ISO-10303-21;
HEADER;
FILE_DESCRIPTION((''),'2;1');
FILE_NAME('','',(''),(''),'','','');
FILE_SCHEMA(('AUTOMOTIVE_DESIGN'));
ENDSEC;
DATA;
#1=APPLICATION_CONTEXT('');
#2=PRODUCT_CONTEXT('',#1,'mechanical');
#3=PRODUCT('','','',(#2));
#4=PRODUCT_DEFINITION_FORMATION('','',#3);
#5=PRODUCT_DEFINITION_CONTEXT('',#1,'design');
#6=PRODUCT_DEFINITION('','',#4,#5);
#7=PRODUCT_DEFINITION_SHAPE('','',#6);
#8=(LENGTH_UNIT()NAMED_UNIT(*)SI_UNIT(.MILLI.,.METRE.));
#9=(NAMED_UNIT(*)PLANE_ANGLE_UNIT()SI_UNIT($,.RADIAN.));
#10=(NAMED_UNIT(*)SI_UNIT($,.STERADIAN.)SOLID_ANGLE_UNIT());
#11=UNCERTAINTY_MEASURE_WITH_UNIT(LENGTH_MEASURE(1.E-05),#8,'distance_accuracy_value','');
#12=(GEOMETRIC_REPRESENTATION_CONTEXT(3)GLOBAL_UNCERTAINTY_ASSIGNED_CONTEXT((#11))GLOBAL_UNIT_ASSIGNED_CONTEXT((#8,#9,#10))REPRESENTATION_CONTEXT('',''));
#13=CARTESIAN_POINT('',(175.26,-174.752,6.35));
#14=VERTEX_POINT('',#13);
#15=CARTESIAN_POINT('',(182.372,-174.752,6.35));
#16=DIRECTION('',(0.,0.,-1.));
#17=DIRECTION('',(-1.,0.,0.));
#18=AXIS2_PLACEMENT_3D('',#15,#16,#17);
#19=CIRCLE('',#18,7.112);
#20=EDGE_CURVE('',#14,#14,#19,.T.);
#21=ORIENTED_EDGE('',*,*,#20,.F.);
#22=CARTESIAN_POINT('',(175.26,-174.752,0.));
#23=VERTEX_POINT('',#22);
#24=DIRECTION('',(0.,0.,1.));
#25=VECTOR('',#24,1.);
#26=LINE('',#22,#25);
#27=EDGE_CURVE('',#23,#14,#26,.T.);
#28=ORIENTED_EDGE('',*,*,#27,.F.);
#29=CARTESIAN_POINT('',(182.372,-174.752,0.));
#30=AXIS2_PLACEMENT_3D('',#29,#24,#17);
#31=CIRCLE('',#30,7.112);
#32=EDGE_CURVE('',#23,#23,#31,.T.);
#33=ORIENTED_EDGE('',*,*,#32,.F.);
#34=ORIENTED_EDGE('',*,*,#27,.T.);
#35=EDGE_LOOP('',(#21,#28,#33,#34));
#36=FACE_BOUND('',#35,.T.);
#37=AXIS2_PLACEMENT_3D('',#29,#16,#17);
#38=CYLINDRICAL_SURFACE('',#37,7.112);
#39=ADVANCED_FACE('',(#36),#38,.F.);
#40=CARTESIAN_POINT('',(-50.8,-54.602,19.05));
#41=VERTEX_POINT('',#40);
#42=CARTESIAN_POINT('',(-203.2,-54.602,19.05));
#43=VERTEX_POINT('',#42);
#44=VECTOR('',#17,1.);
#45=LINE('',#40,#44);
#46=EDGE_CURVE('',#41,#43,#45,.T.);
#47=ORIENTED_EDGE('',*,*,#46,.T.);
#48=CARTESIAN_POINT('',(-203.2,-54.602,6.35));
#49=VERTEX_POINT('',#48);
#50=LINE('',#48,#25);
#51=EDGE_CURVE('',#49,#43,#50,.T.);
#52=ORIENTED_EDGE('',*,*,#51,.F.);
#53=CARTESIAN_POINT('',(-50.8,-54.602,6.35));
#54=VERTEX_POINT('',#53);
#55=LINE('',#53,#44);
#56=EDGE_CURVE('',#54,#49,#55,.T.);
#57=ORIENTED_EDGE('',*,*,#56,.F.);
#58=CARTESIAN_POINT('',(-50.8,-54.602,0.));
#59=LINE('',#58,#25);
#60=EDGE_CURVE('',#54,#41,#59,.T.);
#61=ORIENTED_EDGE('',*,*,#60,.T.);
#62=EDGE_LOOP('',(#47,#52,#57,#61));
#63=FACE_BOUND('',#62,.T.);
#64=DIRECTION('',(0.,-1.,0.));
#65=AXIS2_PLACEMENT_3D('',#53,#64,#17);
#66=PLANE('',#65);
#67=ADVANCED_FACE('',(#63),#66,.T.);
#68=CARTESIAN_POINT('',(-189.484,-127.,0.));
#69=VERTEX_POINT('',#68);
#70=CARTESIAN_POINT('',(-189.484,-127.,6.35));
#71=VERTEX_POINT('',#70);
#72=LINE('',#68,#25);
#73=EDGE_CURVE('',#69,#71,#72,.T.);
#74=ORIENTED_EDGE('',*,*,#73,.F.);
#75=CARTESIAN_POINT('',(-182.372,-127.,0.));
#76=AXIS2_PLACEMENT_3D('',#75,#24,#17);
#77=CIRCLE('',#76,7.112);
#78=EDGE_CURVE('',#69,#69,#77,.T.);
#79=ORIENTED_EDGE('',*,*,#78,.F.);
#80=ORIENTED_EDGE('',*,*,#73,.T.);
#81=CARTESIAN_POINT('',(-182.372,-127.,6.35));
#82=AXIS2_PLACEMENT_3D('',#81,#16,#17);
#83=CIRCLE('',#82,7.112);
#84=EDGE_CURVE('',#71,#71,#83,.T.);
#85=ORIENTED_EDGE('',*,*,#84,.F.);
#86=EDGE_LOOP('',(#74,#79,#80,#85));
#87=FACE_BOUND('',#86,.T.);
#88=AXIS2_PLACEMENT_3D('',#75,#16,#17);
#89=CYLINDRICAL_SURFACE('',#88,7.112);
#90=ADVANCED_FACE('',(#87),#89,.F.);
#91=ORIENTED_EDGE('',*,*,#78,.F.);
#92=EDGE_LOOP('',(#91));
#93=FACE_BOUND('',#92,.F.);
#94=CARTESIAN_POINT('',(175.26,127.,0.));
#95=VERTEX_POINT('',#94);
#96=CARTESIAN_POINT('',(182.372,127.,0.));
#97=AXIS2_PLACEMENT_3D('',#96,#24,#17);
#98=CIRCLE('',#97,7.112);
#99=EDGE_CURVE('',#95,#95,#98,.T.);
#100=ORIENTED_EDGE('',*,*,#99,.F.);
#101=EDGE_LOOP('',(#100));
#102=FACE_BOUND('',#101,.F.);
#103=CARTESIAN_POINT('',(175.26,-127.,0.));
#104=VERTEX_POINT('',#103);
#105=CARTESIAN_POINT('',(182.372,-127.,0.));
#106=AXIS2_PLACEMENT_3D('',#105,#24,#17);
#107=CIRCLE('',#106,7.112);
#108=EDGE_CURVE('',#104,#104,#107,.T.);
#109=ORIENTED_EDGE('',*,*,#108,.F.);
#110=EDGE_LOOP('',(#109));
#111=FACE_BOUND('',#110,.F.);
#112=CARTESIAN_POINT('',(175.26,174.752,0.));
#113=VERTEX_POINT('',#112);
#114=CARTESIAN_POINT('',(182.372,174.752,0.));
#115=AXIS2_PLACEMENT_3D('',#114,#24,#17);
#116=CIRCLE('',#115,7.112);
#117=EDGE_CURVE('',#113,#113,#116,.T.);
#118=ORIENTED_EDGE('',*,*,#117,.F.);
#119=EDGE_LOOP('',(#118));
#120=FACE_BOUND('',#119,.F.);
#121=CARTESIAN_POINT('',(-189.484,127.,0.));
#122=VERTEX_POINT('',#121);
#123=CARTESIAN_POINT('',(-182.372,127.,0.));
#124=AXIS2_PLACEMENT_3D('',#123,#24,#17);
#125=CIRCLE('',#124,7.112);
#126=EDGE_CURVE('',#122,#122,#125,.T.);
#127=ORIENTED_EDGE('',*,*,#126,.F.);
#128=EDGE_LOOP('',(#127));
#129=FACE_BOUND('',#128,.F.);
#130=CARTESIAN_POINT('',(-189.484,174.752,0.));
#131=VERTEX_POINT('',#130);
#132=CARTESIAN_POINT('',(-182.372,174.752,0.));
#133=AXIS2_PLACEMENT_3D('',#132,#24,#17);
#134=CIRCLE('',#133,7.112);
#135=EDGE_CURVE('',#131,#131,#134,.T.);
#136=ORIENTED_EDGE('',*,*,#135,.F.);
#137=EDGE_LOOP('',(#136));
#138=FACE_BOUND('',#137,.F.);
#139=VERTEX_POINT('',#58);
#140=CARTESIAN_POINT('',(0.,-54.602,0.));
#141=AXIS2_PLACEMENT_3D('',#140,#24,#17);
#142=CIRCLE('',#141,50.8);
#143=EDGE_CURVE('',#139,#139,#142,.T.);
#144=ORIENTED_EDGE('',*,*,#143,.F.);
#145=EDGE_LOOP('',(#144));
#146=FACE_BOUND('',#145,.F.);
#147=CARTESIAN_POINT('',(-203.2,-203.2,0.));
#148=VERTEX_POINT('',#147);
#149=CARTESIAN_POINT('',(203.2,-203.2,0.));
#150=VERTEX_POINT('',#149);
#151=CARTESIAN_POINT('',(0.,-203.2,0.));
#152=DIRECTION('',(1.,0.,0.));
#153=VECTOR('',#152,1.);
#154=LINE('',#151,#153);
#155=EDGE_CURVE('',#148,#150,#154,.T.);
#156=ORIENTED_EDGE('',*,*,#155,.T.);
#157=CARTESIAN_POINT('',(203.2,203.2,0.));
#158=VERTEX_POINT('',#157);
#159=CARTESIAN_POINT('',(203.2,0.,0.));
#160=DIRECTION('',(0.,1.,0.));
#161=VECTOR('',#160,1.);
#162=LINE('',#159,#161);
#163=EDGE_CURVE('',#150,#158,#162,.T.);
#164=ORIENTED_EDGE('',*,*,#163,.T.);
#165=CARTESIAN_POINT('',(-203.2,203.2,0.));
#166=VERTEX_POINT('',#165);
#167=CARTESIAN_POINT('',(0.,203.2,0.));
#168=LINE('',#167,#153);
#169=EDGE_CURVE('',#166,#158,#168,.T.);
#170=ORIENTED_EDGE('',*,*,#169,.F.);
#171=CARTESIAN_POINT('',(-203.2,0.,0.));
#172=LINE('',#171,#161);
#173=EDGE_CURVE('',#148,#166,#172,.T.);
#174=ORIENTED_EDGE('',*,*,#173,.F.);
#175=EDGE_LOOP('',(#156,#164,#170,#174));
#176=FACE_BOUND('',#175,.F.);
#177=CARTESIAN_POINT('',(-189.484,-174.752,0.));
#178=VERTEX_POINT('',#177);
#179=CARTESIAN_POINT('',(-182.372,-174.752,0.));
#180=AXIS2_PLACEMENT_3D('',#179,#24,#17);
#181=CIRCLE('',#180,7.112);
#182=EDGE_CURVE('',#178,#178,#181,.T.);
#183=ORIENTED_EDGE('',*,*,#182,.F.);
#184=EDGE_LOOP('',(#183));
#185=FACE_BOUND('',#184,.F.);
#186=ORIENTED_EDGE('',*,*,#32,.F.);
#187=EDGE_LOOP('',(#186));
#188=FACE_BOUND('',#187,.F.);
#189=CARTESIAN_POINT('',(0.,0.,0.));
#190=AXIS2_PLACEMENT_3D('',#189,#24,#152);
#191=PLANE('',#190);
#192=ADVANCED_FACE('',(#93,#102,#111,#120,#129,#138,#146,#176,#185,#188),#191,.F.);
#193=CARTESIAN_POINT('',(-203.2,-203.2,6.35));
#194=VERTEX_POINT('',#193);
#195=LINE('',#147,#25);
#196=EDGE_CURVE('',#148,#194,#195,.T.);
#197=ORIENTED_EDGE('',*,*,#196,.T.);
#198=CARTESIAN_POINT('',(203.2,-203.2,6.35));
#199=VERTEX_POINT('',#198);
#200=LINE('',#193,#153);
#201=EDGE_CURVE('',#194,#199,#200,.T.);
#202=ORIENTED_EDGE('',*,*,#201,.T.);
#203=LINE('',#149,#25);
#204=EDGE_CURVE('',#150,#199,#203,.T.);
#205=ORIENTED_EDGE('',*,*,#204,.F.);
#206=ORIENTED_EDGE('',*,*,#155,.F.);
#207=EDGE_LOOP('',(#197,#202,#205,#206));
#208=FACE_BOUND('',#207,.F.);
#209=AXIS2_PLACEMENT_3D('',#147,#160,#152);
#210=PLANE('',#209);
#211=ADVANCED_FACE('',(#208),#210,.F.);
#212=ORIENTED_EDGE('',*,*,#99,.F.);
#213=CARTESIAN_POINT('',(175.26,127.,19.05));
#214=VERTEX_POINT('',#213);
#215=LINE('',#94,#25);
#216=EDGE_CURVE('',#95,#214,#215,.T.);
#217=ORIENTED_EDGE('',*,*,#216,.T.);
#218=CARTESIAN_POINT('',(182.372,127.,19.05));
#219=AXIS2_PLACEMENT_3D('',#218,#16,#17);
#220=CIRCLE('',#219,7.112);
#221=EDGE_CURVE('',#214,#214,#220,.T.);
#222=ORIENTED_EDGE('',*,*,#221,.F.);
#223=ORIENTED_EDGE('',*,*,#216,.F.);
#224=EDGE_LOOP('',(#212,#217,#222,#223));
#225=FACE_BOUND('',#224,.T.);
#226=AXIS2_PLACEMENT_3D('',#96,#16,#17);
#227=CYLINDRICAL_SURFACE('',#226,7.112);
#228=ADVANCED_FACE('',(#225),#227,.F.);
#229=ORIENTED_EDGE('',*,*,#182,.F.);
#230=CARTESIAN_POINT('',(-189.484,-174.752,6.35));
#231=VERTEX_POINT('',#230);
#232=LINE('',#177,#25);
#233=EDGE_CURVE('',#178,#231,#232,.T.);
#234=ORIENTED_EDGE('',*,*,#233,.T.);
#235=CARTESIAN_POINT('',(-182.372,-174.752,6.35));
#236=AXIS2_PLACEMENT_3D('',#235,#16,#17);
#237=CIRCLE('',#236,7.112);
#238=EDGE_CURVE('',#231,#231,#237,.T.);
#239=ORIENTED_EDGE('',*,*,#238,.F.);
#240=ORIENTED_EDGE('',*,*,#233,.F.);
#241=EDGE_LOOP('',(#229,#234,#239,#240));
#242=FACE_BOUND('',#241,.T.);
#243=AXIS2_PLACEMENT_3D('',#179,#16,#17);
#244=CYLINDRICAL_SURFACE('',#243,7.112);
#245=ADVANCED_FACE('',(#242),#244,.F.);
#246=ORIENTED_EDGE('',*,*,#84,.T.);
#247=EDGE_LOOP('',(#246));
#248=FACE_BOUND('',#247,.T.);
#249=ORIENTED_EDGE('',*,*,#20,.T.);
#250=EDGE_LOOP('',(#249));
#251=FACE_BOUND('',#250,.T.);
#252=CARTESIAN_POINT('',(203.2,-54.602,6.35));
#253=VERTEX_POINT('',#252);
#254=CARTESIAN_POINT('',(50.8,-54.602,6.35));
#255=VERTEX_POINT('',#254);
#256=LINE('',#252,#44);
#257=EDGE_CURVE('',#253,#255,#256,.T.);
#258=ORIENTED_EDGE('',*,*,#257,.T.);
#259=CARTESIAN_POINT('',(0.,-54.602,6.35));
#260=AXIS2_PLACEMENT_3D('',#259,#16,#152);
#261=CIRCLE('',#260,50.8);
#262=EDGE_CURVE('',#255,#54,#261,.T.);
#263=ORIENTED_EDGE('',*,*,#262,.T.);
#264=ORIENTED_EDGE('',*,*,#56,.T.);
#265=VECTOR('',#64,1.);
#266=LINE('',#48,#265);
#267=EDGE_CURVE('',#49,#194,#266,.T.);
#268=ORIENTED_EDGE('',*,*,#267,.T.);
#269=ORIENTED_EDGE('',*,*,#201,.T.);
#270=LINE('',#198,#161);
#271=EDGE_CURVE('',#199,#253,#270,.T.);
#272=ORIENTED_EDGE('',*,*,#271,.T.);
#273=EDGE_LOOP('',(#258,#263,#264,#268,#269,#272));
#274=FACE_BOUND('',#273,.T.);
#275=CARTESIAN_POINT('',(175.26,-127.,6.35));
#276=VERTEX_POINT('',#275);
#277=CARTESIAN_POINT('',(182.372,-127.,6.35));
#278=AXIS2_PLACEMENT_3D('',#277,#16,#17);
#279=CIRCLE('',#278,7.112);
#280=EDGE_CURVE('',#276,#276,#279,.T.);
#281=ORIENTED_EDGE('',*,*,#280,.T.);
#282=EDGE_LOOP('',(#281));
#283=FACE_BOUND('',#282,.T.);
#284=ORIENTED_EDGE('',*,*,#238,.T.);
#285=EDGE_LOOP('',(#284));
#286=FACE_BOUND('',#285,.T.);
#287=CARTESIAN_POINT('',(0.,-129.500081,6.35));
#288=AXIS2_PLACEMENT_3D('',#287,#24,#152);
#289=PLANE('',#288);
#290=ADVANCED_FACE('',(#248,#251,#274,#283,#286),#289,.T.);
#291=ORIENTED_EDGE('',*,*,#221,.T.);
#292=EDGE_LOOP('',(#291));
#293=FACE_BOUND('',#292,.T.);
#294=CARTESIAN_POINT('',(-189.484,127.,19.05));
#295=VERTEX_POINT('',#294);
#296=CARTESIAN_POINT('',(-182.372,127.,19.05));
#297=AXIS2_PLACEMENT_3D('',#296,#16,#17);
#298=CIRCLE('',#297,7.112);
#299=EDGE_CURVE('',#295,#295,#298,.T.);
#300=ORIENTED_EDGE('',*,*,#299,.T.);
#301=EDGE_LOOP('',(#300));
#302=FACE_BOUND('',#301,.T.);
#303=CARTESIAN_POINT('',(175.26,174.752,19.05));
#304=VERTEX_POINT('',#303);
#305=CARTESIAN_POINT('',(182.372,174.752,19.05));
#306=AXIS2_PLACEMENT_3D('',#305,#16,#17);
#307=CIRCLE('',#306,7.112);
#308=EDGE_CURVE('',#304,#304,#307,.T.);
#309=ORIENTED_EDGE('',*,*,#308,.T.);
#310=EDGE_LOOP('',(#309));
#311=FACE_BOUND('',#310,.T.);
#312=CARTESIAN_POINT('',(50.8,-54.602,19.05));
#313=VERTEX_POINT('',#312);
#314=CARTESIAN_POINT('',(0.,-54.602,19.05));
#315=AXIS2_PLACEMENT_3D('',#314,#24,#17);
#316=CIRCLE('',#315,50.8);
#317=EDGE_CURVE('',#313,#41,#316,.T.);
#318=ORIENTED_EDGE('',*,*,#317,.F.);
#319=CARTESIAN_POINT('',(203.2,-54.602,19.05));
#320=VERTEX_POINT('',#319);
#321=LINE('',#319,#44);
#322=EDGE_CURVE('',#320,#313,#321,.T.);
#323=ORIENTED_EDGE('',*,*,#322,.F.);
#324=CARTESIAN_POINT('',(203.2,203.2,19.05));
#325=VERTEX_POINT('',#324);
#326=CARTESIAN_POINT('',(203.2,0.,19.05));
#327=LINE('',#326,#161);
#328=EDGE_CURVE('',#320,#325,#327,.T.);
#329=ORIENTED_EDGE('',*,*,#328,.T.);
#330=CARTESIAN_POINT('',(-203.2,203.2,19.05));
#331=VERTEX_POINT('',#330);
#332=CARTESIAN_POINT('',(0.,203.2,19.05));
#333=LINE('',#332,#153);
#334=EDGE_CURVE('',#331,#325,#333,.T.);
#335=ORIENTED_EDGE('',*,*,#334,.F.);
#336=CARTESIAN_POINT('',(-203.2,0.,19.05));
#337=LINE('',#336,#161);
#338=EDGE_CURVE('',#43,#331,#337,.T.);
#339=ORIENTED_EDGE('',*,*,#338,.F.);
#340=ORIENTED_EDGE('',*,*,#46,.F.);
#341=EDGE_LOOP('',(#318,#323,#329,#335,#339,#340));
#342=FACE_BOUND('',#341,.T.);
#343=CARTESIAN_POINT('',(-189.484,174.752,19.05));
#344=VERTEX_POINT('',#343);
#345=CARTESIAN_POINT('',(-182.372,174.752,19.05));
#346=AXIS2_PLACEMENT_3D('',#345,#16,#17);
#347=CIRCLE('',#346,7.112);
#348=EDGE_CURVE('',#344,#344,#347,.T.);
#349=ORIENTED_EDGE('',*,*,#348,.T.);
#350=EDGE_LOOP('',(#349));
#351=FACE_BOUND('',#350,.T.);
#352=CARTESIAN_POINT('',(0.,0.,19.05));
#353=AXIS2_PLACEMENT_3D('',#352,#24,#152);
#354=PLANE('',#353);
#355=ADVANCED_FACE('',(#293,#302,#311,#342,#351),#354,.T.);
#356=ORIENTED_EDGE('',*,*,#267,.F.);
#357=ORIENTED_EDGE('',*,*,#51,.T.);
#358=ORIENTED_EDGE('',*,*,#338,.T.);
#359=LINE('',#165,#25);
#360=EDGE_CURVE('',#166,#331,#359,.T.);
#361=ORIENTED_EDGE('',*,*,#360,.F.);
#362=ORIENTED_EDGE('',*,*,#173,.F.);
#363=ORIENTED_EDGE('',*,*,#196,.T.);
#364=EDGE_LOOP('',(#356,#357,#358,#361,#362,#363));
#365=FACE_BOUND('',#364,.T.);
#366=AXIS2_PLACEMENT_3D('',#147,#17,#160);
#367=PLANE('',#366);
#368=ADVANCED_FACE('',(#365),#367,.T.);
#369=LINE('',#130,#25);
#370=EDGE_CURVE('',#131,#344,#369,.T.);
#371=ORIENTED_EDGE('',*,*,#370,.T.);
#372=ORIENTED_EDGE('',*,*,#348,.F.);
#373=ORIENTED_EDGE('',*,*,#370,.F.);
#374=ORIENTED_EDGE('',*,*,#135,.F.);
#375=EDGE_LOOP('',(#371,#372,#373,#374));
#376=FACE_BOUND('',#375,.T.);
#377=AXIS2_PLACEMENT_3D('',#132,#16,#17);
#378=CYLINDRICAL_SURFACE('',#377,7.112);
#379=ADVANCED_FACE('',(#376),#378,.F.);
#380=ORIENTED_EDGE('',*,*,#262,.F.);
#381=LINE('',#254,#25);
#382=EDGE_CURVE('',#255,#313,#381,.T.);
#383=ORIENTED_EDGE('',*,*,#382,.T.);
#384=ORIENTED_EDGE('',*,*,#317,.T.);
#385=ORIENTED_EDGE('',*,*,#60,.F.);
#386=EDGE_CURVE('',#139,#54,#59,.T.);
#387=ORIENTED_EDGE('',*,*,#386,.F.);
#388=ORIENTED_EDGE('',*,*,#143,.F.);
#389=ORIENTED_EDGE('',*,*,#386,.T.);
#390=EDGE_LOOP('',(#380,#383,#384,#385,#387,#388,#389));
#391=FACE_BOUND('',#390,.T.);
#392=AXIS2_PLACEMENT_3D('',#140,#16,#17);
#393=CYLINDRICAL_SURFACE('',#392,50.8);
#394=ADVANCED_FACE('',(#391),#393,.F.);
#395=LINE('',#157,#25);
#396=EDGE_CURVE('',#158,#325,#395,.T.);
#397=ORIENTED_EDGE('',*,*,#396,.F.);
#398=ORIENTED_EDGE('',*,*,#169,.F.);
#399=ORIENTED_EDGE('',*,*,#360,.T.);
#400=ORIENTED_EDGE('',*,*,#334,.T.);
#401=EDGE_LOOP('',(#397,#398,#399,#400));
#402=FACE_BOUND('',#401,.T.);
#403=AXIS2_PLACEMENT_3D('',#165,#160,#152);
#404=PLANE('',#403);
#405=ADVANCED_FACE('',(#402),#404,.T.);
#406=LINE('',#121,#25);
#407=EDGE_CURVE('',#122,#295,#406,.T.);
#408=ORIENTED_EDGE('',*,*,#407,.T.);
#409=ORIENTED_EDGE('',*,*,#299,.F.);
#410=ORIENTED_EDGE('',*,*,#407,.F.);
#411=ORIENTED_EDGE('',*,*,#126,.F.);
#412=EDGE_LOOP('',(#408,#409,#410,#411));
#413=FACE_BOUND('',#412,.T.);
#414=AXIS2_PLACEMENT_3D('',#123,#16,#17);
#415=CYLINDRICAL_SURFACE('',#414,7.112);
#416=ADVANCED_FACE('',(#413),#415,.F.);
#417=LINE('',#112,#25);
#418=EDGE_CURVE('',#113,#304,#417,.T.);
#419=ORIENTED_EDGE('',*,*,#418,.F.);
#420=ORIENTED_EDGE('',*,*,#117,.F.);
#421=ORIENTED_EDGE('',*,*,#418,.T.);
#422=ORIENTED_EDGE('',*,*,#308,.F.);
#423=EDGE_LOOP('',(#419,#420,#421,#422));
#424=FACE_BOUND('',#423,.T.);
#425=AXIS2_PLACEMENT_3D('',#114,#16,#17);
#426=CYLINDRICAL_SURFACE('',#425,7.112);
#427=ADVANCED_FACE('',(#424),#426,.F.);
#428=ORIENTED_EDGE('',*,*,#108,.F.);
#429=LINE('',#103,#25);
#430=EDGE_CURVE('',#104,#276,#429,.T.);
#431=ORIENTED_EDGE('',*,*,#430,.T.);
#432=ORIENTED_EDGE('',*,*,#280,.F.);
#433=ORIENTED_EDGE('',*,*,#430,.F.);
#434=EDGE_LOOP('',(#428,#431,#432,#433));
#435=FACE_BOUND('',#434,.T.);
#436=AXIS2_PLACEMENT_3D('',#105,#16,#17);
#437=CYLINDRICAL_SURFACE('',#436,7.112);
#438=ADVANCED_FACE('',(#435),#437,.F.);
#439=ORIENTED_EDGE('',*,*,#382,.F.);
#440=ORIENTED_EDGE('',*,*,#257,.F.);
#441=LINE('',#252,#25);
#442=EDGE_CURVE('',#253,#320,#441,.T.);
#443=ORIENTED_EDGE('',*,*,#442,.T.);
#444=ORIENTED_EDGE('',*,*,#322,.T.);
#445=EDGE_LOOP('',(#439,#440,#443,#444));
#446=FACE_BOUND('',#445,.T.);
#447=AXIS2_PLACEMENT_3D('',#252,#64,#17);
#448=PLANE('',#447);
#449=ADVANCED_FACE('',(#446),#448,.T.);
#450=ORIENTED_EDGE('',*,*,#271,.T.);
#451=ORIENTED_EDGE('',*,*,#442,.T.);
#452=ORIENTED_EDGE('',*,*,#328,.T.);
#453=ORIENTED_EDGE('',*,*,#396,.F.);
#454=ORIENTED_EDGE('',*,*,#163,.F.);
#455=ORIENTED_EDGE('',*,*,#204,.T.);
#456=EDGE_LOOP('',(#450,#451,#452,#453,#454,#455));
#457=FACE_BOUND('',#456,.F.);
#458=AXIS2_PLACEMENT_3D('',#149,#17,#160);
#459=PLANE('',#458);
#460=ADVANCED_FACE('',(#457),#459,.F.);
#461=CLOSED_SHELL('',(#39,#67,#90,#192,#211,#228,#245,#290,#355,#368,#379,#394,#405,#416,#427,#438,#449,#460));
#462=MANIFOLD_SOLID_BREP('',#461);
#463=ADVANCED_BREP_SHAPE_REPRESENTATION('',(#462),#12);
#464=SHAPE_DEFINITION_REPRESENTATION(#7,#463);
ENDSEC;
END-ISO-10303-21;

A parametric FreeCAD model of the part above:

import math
import FreeCAD as App
import Part
import Sketcher

V = App.Vector
Q = App.Units.Quantity


def add_polygon(sketch, points):
    """Adds a closed chain of lines whose ends are joined by coincident constraints."""
    first, n = sketch.GeometryCount, len(points)
    for a, b in zip(points, points[1:] + points[:1]):
        sketch.addGeometry(Part.LineSegment(App.Vector(*a, 0), App.Vector(*b, 0)), False)
    for i in range(n):
        sketch.addConstraint(Sketcher.Constraint("Coincident", first + i, 2, first + (i + 1) % n, 1))

doc = App.newDocument("Part")
body = doc.addObject("PartDesign::Body", "Body")

# Sketch on XY plane
sketch1 = body.newObject("Sketcher::SketchObject", "Sketch")
sketch1.AttachmentSupport = (doc.getObject("XY_Plane"), [""])
sketch1.MapMode = "FlatFace"
add_polygon(sketch1, [(-203, 203), (-203, -203), (203, -203), (203, 203)])  # lines 0-3
sketch1.addGeometry(Part.Circle(V(0, -55, 0), V(0, 0, 1), 51), False)  # 4
sketch1.addConstraint([
    Sketcher.Constraint("Vertical", 0),
    Sketcher.Constraint("Horizontal", 1),
    Sketcher.Constraint("Vertical", 2),
    Sketcher.Constraint("Horizontal", 3),
    Sketcher.Constraint("Symmetric", 0, 2, 2, 2, -1, 1),
    Sketcher.Constraint("PointOnObject", 4, 3, -2),
    Sketcher.Constraint("Equal", 3, 0),
    Sketcher.Constraint("Diameter", 4, Q("4 in")),
    Sketcher.Constraint("DistanceX", 1, 1, 1, 2, Q("16 in")),
    Sketcher.Constraint("DistanceY", 4, 3, -1, 1, 54.602),
])
pad1 = body.newObject("PartDesign::Pad", "Pad")
pad1.Profile = sketch1
pad1.Length = Q("0.75 in")

# Sketch on XY plane
sketch2 = body.newObject("Sketcher::SketchObject", "Sketch001")
sketch2.AttachmentSupport = (doc.getObject("XY_Plane"), [""])
sketch2.MapMode = "FlatFace"
sketch2.AttachmentOffset = App.Placement(V(0, 0, 0.25 * 25.4), App.Rotation())
sketch2.addGeometry([
    Part.LineSegment(V(-51, -55, 0), V(-203, -55, 0)),  # 0
    Part.LineSegment(V(-203, -55, 0), V(-203, -203, 0)),  # 1
    Part.LineSegment(V(-203, -203, 0), V(203, -203, 0)),  # 2
    Part.LineSegment(V(203, -203, 0), V(203, -55, 0)),  # 3
    Part.LineSegment(V(203, -55, 0), V(51, -55, 0)),  # 4
    Part.ArcOfCircle(Part.Circle(V(0, -55, 0), V(0, 0, 1), 51), math.radians(180), math.radians(360)),  # 5
], False)
sketch2.addConstraint([
    Sketcher.Constraint("Coincident", 0, 2, 1, 1),
    Sketcher.Constraint("Coincident", 1, 2, 2, 1),
    Sketcher.Constraint("Coincident", 2, 2, 3, 1),
    Sketcher.Constraint("Coincident", 3, 2, 4, 1),
    Sketcher.Constraint("Coincident", 4, 2, 5, 2),
    Sketcher.Constraint("Coincident", 5, 1, 0, 1),
    Sketcher.Constraint("Horizontal", 0),
    Sketcher.Constraint("Vertical", 1),
    Sketcher.Constraint("Horizontal", 2),
    Sketcher.Constraint("Vertical", 3),
    Sketcher.Constraint("Horizontal", 4),
    Sketcher.Constraint("Symmetric", 0, 2, 3, 2, -2),
    Sketcher.Constraint("PointOnObject", 5, 3, -2),
    Sketcher.Constraint("Horizontal", 5, 3, 0, 2),
    Sketcher.Constraint("Radius", 5, Q("2 in")),
    Sketcher.Constraint("DistanceX", 0, 2, 0, 1, Q("6 in")),
    Sketcher.Constraint("DistanceY", 1, 2, -1, 1, Q("8 in")),
    Sketcher.Constraint("DistanceY", 1, 2, 1, 1, 148.598),
])
pocket1 = body.newObject("PartDesign::Pocket", "Pocket")
pocket1.Profile = sketch2
pocket1.Length = Q("0.5 in")
pocket1.Reversed = True

# Sketch on XY plane
sketch3 = body.newObject("Sketcher::SketchObject", "Sketch002")
sketch3.AttachmentSupport = (doc.getObject("XY_Plane"), [""])
sketch3.MapMode = "FlatFace"
sketch3.addGeometry([
    Part.Circle(V(-182, 175, 0), V(0, 0, 1), 7),  # 0
    Part.Circle(V(-182, 127, 0), V(0, 0, 1), 7),  # 1
    Part.Circle(V(182, 127, 0), V(0, 0, 1), 7),  # 2
    Part.Circle(V(182, 175, 0), V(0, 0, 1), 7),  # 3
    Part.Circle(V(182, -175, 0), V(0, 0, 1), 7),  # 4
    Part.Circle(V(182, -127, 0), V(0, 0, 1), 7),  # 5
    Part.Circle(V(-182, -175, 0), V(0, 0, 1), 7),  # 6
    Part.Circle(V(-182, -127, 0), V(0, 0, 1), 7),  # 7
], False)
sketch3.addConstraint([
    Sketcher.Constraint("Equal", 0, 1),
    Sketcher.Constraint("Equal", 1, 2),
    Sketcher.Constraint("Equal", 2, 3),
    Sketcher.Constraint("Equal", 3, 4),
    Sketcher.Constraint("Equal", 4, 5),
    Sketcher.Constraint("Equal", 5, 6),
    Sketcher.Constraint("Equal", 6, 7),
    Sketcher.Constraint("Symmetric", 0, 3, 4, 3, -1, 1),
    Sketcher.Constraint("Symmetric", 1, 3, 5, 3, -1, 1),
    Sketcher.Constraint("Symmetric", 3, 3, 6, 3, -1, 1),
    Sketcher.Constraint("Symmetric", 2, 3, 7, 3, -1, 1),
    Sketcher.Constraint("Symmetric", 1, 3, 2, 3, -2),
    Sketcher.Constraint("Symmetric", 0, 3, 3, 3, -2),
    Sketcher.Constraint("Vertical", 0, 3, 1, 3),
    Sketcher.Constraint("Diameter", 0, Q("0.56 in")),
    Sketcher.Constraint("DistanceY", -1, 1, 1, 3, Q("5 in")),
    Sketcher.Constraint("DistanceX", 0, 3, -1, 1, Q("7.18 in")),
    Sketcher.Constraint("DistanceY", -1, 1, 0, 3, Q("6.88 in")),
])
pocket2 = body.newObject("PartDesign::Pocket", "Pocket001")
pocket2.Profile = sketch3
pocket2.Type = "ThroughAll"
pocket2.Reversed = True

doc.recompute()
